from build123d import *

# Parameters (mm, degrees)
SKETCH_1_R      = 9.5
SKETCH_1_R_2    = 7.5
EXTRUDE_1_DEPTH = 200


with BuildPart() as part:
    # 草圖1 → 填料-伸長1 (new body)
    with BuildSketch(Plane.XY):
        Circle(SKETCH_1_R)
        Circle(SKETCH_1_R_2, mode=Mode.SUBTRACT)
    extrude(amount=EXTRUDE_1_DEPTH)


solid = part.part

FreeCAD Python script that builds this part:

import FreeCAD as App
import Part
import Sketcher
from FreeCAD import Vector

doc = App.newDocument("Part")
body = doc.addObject("PartDesign::Body", "Body")

# Sketch on XY plane
sketch1 = body.newObject("Sketcher::SketchObject", "Sketch")
sketch1.AttachmentSupport = (doc.getObject("XY_Plane"), [""])
sketch1.MapMode = "FlatFace"
sketch1.addGeometry(Part.Circle(Vector(0, 0, 0), Vector(0, 0, 1), 10), False)
sketch1.addGeometry(Part.Circle(Vector(0, 0, 0), Vector(0, 0, 1), 8), False)
sketch1.addConstraint(Sketcher.Constraint("Coincident", 0, 3, -1, 1))
sketch1.addConstraint(Sketcher.Constraint("Coincident", 1, 3, -1, 1))
sketch1.addConstraint(Sketcher.Constraint("Diameter", 0, 19.0))
sketch1.addConstraint(Sketcher.Constraint("Diameter", 1, 15.0))
pad1 = body.newObject("PartDesign::Pad", "Pad")
pad1.Profile = sketch1
pad1.Length = 200

doc.recompute()
